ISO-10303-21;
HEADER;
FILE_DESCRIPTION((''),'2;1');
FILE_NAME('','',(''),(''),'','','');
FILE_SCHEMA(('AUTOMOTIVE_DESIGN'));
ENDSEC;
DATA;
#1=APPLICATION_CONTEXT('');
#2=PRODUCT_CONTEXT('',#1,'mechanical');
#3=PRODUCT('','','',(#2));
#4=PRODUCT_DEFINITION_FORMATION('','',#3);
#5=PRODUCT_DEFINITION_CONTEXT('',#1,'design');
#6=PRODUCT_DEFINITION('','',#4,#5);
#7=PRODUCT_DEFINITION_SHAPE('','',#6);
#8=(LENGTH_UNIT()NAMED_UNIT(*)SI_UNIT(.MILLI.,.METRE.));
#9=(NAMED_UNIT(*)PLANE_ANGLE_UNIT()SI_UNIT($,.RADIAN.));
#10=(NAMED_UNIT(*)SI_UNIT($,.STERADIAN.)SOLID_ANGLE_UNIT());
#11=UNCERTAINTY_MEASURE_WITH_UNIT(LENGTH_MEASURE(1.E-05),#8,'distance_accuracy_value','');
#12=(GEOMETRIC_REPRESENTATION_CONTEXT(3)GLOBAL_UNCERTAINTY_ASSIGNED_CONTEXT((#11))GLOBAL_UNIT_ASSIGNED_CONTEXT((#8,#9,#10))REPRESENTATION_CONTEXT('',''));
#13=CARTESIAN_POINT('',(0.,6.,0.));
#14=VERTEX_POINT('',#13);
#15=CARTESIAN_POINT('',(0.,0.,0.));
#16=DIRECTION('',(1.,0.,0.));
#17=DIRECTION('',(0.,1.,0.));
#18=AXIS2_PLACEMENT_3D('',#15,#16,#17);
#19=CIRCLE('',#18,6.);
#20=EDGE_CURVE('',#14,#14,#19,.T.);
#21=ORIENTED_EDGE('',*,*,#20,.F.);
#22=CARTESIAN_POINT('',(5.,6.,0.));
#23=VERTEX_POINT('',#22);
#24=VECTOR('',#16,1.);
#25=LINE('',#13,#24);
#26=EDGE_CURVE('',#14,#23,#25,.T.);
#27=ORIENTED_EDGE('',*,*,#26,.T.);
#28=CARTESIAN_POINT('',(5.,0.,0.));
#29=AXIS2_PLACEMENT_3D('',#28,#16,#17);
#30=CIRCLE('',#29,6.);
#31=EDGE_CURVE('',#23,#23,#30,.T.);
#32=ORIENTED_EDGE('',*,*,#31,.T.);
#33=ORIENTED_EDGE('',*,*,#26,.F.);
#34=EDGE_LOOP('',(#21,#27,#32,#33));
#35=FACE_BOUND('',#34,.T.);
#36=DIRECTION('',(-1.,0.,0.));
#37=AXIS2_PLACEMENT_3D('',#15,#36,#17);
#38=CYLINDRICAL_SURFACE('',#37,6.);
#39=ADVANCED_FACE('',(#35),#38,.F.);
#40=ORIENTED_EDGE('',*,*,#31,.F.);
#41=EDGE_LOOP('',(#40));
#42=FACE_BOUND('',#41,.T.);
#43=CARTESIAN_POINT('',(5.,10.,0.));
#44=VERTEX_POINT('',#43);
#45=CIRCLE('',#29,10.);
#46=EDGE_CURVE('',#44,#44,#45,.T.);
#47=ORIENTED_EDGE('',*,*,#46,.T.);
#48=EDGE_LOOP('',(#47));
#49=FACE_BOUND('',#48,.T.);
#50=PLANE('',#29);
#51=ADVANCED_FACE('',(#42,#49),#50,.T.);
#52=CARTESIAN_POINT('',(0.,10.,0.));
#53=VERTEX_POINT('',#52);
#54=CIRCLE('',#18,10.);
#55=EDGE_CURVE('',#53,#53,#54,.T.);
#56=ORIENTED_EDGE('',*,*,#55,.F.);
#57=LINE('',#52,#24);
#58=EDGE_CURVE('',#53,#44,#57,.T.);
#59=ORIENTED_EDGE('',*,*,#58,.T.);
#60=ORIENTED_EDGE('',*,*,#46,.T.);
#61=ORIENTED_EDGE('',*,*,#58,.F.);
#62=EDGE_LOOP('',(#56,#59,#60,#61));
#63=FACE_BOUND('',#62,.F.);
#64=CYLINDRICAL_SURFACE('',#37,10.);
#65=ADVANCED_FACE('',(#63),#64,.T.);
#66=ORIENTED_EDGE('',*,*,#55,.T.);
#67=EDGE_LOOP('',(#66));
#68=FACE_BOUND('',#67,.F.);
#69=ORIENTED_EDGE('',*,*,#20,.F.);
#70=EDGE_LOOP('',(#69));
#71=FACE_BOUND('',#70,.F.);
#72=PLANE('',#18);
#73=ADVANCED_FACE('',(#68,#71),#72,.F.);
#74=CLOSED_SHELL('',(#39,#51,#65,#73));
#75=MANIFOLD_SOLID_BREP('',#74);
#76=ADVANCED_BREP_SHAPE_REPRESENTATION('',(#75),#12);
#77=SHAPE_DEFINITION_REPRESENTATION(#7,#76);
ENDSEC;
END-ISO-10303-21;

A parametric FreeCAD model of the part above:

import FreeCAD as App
import Part
import Sketcher
from FreeCAD import Vector
Q = App.Units.Quantity

doc = App.newDocument("Part")
body = doc.addObject("PartDesign::Body", "Body")

sketch1 = body.newObject("Sketcher::SketchObject", "Sketch")
sketch1.AttachmentSupport = (doc.getObject("YZ_Plane"), [""])
sketch1.MapMode = "FlatFace"
sketch1.addGeometry([
    Part.Circle(Vector(0, 0, 0), Vector(0, 0, 1), 10),
    Part.Circle(Vector(0, 0, 0), Vector(0, 0, 1), 6),
], False)
sketch1.addConstraint([
    Sketcher.Constraint("Coincident", 0, 3, -1, 1),
    Sketcher.Constraint("Coincident", 1, 3, -1, 1),
    Sketcher.Constraint("Diameter", 0, Q("20 mm")),
    Sketcher.Constraint("Diameter", 1, Q("12 mm")),
])
pad1 = body.newObject("PartDesign::Pad", "Pad")
pad1.Profile = sketch1
pad1.Length = 5

doc.recompute()
